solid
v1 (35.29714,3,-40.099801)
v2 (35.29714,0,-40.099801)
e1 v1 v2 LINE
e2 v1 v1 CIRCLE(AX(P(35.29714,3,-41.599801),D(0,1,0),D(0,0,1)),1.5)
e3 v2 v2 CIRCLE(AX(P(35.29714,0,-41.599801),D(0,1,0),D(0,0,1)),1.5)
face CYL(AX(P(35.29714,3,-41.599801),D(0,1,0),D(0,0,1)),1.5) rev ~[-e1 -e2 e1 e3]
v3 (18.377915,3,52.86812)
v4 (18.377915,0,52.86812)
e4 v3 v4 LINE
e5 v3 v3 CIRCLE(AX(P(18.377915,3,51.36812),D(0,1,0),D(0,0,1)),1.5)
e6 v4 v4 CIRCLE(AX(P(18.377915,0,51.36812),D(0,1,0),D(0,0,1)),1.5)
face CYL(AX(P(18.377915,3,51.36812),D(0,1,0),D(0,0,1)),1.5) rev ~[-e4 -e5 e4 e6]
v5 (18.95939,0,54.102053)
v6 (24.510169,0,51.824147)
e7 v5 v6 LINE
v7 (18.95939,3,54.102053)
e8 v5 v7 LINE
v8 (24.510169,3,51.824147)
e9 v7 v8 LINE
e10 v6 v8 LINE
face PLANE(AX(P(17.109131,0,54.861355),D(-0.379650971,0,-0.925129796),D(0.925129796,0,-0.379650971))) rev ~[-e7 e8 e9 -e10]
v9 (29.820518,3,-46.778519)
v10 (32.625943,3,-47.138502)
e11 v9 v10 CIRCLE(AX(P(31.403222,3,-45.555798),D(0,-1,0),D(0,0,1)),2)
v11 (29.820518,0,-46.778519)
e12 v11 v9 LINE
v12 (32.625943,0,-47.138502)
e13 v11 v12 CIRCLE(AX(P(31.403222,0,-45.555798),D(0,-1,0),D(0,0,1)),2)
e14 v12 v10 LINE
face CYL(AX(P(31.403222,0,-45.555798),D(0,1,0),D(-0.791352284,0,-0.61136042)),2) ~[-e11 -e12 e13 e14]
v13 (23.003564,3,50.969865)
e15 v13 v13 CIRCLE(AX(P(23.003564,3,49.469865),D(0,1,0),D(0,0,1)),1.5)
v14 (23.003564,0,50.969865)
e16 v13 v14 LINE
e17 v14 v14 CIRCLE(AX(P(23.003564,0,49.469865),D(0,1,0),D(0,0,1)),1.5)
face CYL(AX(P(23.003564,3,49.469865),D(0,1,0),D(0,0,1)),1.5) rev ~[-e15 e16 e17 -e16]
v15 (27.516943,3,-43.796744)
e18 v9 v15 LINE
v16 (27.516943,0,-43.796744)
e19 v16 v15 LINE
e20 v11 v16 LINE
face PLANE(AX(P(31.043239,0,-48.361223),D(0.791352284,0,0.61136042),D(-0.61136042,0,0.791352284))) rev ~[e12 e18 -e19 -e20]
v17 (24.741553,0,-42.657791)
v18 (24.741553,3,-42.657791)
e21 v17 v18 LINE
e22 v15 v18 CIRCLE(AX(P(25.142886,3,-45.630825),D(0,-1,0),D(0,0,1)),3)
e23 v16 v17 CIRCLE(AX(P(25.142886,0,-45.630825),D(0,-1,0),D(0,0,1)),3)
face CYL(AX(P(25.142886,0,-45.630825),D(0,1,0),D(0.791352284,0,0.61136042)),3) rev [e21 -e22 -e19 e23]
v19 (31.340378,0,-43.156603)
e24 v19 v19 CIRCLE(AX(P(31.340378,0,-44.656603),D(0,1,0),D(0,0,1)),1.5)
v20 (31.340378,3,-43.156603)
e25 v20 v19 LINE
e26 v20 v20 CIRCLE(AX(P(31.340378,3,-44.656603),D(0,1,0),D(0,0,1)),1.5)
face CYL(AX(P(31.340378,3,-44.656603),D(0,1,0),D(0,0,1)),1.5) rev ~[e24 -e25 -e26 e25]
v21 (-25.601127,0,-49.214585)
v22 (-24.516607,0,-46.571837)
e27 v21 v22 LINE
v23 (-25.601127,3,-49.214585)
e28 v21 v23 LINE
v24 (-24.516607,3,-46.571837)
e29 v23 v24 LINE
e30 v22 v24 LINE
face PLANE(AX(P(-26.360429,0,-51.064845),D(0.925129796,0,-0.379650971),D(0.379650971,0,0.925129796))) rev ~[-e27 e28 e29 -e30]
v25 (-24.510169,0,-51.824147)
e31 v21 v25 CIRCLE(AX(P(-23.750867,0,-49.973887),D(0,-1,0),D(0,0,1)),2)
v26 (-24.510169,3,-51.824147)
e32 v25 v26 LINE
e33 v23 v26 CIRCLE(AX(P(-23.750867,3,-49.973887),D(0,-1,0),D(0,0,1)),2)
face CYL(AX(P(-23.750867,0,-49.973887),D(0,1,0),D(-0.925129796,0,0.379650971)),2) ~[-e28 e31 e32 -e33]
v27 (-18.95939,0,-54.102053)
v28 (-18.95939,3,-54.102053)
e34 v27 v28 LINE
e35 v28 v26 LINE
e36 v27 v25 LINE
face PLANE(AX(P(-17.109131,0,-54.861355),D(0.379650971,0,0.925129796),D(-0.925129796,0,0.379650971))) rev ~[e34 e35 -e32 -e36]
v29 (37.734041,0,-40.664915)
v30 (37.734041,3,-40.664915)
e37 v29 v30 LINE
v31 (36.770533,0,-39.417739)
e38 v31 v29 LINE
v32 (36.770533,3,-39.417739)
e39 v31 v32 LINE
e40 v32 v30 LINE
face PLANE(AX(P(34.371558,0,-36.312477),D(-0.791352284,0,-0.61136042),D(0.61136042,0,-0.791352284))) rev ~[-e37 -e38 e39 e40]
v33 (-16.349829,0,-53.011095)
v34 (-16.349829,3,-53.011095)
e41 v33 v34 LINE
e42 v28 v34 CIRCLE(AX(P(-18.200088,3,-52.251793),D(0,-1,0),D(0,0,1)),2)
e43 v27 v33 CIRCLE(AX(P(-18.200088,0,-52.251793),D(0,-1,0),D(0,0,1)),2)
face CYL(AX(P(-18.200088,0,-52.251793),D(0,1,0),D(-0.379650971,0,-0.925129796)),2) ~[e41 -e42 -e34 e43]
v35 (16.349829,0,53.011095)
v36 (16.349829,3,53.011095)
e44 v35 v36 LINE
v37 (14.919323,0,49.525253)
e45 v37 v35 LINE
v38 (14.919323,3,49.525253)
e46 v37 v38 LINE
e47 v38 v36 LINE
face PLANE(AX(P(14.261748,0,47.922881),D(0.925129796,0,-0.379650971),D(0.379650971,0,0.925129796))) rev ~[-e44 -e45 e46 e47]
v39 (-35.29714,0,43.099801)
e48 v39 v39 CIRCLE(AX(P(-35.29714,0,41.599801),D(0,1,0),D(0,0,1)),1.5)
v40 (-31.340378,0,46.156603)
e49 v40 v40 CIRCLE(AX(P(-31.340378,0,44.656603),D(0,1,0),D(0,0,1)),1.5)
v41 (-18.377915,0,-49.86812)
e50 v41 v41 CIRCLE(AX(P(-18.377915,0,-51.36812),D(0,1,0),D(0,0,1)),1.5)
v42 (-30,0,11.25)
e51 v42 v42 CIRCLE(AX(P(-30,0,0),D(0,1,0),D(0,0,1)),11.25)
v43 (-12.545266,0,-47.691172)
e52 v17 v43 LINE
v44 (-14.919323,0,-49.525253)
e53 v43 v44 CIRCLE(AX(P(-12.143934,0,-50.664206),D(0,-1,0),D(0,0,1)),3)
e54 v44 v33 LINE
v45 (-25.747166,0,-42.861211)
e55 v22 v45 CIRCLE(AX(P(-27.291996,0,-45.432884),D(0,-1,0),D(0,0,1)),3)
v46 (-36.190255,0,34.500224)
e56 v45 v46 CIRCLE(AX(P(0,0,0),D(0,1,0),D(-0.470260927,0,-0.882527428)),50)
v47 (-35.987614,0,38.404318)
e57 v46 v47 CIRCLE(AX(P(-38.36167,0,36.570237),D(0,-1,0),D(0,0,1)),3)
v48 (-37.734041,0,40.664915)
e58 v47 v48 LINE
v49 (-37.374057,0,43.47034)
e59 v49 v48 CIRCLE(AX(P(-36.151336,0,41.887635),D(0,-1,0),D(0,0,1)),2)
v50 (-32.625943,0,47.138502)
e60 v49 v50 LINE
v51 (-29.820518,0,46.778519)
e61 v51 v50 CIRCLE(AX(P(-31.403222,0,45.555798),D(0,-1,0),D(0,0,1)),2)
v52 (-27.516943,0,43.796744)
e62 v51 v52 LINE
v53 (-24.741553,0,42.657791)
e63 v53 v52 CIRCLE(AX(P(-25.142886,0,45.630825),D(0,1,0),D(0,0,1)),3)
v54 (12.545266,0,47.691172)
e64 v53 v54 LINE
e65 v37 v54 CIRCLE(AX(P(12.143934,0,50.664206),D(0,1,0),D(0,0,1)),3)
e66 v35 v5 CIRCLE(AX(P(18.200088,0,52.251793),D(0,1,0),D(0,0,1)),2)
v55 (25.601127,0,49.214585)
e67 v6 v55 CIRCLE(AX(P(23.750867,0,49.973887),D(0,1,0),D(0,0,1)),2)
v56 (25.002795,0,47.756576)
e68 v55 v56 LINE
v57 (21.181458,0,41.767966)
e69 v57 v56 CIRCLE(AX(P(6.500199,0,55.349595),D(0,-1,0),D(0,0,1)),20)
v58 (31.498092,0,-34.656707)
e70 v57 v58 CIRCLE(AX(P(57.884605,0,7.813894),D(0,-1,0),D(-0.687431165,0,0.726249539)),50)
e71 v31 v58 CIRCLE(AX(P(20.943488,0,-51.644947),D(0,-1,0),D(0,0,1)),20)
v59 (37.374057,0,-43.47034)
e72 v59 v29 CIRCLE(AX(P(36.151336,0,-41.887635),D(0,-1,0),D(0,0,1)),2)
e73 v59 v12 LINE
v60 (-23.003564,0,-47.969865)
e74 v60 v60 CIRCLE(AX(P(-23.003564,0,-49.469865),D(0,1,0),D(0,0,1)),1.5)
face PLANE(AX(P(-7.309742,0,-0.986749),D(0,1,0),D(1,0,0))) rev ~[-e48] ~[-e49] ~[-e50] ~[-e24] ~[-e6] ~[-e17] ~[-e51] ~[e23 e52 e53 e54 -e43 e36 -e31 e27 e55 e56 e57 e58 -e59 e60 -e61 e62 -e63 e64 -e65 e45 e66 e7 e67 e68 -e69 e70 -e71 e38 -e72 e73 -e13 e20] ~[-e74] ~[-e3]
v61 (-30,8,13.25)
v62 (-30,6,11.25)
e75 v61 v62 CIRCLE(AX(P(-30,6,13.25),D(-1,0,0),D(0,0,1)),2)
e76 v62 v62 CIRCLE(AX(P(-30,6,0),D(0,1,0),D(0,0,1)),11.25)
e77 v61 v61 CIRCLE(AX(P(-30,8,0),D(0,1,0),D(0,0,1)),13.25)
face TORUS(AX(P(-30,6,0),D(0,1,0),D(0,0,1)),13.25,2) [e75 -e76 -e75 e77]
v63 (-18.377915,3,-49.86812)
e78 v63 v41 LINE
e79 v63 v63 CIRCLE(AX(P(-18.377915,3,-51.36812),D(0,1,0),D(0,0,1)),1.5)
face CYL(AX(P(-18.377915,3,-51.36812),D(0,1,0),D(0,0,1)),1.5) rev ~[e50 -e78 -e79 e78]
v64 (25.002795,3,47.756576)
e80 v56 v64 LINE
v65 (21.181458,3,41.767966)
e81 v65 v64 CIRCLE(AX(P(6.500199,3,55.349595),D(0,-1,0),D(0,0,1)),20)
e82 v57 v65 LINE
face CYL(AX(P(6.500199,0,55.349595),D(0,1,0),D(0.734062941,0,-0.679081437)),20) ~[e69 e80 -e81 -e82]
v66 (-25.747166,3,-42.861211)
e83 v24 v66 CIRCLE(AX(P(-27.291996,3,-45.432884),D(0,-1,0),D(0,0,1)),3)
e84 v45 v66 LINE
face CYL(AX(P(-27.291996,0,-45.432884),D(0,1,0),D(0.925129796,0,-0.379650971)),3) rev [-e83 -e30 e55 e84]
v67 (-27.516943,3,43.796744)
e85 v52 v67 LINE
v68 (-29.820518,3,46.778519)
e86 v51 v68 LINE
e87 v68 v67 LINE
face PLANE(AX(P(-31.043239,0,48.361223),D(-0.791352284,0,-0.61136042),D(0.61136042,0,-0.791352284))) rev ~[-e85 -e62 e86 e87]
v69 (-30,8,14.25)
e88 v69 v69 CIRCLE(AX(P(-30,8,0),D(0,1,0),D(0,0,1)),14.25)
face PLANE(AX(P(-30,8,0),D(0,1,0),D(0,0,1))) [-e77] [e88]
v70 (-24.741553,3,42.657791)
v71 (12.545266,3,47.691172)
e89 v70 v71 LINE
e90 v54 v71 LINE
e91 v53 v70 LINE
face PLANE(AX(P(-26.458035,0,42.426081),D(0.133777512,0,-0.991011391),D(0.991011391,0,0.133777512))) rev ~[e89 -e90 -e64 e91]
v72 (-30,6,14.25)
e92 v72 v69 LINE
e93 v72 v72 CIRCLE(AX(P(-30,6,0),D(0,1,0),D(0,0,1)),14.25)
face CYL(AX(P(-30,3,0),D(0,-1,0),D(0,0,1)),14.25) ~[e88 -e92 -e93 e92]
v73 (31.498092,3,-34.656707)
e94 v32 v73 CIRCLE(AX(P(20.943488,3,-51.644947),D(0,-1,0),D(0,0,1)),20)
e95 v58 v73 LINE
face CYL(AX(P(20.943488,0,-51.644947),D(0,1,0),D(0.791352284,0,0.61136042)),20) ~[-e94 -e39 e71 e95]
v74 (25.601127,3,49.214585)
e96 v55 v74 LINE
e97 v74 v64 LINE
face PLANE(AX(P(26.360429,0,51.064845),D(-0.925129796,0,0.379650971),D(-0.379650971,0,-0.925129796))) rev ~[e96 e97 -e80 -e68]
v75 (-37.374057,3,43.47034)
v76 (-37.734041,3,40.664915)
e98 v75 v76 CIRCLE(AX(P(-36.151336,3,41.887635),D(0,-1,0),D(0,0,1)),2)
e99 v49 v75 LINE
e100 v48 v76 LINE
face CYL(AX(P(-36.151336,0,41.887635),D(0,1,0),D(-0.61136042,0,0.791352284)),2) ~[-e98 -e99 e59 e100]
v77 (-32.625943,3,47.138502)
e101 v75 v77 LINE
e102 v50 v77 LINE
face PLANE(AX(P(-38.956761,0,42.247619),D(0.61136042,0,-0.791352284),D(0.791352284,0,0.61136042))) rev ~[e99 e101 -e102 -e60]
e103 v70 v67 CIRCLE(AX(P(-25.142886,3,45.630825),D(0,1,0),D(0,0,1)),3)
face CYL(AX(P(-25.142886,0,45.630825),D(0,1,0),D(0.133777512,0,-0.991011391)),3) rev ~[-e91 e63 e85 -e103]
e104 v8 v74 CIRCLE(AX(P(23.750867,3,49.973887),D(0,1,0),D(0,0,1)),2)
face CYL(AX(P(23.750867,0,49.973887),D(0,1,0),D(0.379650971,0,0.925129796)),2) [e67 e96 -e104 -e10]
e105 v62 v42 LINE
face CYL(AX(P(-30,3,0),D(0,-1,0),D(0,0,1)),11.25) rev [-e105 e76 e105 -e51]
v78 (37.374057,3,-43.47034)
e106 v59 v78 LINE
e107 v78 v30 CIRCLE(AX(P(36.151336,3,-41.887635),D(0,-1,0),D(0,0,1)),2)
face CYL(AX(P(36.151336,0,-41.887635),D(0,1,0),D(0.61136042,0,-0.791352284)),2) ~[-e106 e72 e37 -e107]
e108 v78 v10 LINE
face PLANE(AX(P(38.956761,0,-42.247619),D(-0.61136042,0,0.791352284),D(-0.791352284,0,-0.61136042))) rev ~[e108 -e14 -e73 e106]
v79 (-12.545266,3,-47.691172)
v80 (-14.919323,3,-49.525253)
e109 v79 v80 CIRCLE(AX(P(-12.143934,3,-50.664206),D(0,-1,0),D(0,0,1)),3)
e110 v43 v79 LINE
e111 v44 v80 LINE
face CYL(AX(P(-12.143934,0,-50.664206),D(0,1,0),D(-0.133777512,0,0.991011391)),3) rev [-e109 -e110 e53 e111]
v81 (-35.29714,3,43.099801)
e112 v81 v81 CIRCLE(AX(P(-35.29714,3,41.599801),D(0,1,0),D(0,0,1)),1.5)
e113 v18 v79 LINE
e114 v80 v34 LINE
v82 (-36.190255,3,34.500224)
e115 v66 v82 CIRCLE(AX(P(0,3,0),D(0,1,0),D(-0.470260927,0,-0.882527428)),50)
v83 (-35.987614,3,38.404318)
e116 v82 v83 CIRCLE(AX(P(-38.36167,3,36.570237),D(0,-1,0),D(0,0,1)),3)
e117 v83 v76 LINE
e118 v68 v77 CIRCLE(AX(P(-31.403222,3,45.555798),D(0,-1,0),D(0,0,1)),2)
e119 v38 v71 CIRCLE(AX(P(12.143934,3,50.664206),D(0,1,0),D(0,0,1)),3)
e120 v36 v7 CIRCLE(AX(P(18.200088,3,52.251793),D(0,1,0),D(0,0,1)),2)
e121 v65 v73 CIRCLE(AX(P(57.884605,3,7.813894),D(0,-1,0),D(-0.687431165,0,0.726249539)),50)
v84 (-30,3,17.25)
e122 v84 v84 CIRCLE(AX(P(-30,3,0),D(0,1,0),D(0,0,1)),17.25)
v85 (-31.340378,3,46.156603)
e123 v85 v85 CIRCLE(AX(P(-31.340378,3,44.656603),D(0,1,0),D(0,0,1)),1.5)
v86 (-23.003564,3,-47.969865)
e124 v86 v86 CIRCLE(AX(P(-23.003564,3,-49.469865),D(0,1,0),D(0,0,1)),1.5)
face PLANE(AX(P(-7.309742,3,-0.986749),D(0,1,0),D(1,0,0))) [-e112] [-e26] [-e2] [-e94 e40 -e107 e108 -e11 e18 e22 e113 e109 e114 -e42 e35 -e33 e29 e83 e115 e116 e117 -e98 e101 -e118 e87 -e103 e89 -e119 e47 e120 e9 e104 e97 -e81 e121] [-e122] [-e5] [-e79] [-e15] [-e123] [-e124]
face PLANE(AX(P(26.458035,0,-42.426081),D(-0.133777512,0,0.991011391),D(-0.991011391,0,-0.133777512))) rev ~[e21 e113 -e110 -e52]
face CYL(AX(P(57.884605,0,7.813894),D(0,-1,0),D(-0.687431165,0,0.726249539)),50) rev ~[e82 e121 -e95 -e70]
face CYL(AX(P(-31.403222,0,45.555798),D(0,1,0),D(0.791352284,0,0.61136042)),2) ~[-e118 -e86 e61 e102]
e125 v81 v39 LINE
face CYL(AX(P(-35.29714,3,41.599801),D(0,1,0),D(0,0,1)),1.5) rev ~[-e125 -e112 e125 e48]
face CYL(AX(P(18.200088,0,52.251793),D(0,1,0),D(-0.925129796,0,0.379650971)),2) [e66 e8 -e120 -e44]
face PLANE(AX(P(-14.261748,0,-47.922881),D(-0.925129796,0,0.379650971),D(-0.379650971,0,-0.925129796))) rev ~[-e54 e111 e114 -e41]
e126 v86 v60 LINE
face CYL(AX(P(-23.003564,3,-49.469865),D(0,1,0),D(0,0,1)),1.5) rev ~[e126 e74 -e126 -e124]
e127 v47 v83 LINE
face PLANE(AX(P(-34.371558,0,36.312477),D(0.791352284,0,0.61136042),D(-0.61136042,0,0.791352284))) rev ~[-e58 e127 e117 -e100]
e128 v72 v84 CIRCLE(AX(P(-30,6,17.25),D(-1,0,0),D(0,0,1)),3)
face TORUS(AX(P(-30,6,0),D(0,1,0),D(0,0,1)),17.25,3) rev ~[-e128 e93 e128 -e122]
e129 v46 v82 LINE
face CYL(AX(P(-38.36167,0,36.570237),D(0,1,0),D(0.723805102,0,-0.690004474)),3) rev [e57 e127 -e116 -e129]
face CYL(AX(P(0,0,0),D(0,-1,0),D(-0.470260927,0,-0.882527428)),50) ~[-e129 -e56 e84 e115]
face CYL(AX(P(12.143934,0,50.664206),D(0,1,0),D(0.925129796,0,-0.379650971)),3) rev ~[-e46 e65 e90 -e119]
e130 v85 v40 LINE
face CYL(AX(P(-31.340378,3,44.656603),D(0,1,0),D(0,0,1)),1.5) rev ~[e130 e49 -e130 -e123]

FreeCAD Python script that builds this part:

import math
import FreeCAD as App
import Part
import Sketcher

V = App.Vector
Q = App.Units.Quantity


def edges_at(feature, points):
    """Names of the edges that pass closest to the given points."""
    edges = feature.Shape.Edges
    near = lambda p: min(range(len(edges)), key=lambda i: edges[i].distToShape(Part.Vertex(*p))[0])
    return sorted({f"Edge{near(p) + 1}" for p in points})

doc = App.newDocument("Part")
body = doc.addObject("PartDesign::Body", "Body")

sketch1 = body.newObject("Sketcher::SketchObject", "Sketch")
sketch1.AttachmentSupport = (doc.getObject("XZ_Plane"), [""])
sketch1.MapMode = "FlatFace"
sketch1.addGeometry([
    Part.LineSegment(V(-34.371558, 36.312477, 0), V(-38.956761, 42.247619, 0)),
    Part.LineSegment(V(-38.956761, 42.247619, 0), V(-31.043239, 48.361223, 0)),
    Part.LineSegment(V(-31.043239, 48.361223, 0), V(-26.458035, 42.426081, 0)),
    Part.ArcOfCircle(Part.Circle(V(0, 0, 0), V(0, 0, 1), 50), math.radians(121.948765), math.radians(133.427106)),
], False)
sketch1.addConstraint([
    Sketcher.Constraint("Coincident", 0, 2, 1, 1),
    Sketcher.Constraint("Coincident", 1, 2, 2, 1),
    Sketcher.Constraint("Coincident", 2, 2, 3, 1),
    Sketcher.Constraint("Coincident", 3, 2, 0, 1),
    Sketcher.Constraint("Coincident", 3, 3, -1, 1),
    Sketcher.Constraint("Perpendicular", 0, 1),
    Sketcher.Constraint("Perpendicular", 1, 2),
    Sketcher.Constraint("Equal", 0, 2),
    Sketcher.Constraint("Radius", 3, Q("50 mm")),
    Sketcher.Constraint("Distance", 1, Q("10 mm")),
    Sketcher.Constraint("Distance", 0, Q("7.5 mm")),
    Sketcher.Constraint("DistanceX", 0, 2, -1, 1, Q("38.956761 mm")),
])
pad1 = body.newObject("PartDesign::Pad", "Pad")
pad1.Profile = sketch1
pad1.Length = 3
pad1.Reversed = True
body2 = doc.addObject("PartDesign::Body", "Body001")

sketch2 = body2.newObject("Sketcher::SketchObject", "Sketch001")
sketch2.AttachmentSupport = (doc.getObject("XZ_Plane001"), [""])
sketch2.MapMode = "FlatFace"
sketch2.addGeometry([
    Part.LineSegment(V(14.261748, 47.922881, 0), V(17.109131, 54.861355, 0)),
    Part.LineSegment(V(17.109131, 54.861355, 0), V(26.360429, 51.064845, 0)),
    Part.LineSegment(V(26.360429, 51.064845, 0), V(23.513046, 44.126371, 0)),
    Part.ArcOfCircle(Part.Circle(V(0, 0, 0), V(0, 0, 1), 50), math.radians(61.948765), math.radians(73.427106)),
], False)
sketch2.addConstraint([
    Sketcher.Constraint("Coincident", 0, 2, 1, 1),
    Sketcher.Constraint("Coincident", 1, 2, 2, 1),
    Sketcher.Constraint("Coincident", 2, 2, 3, 1),
    Sketcher.Constraint("Coincident", 3, 2, 0, 1),
    Sketcher.Constraint("Coincident", 3, 3, -1, 1),
    Sketcher.Constraint("Perpendicular", 0, 1),
    Sketcher.Constraint("Perpendicular", 1, 2),
    Sketcher.Constraint("Equal", 0, 2),
    Sketcher.Constraint("Radius", 3, Q("50 mm")),
    Sketcher.Constraint("Distance", 1, Q("10 mm")),
    Sketcher.Constraint("Distance", 0, Q("7.5 mm")),
    Sketcher.Constraint("DistanceX", -1, 1, 0, 2, Q("17.109131 mm")),
])
pad2 = body2.newObject("PartDesign::Pad", "Pad001")
pad2.Profile = sketch2
pad2.Length = 3
pad2.Reversed = True
body3 = doc.addObject("PartDesign::Body", "Body002")

sketch3 = body3.newObject("Sketcher::SketchObject", "Sketch002")
sketch3.AttachmentSupport = (doc.getObject("XZ_Plane002"), [""])
sketch3.MapMode = "FlatFace"
sketch3.addGeometry([
    Part.LineSegment(V(34.371558, -36.312477, 0), V(38.956761, -42.247619, 0)),
    Part.LineSegment(V(38.956761, -42.247619, 0), V(31.043239, -48.361223, 0)),
    Part.LineSegment(V(31.043239, -48.361223, 0), V(26.458035, -42.426081, 0)),
    Part.ArcOfCircle(Part.Circle(V(0, 0, 0), V(0, 0, 1), 50), math.radians(-58.051235), math.radians(-46.572894)),
], False)
sketch3.addConstraint([
    Sketcher.Constraint("Coincident", 0, 2, 1, 1),
    Sketcher.Constraint("Coincident", 1, 2, 2, 1),
    Sketcher.Constraint("Coincident", 2, 2, 3, 1),
    Sketcher.Constraint("Coincident", 3, 2, 0, 1),
    Sketcher.Constraint("Coincident", 3, 3, -1, 1),
    Sketcher.Constraint("Perpendicular", 0, 1),
    Sketcher.Constraint("Perpendicular", 1, 2),
    Sketcher.Constraint("Equal", 0, 2),
    Sketcher.Constraint("Radius", 3, Q("50 mm")),
    Sketcher.Constraint("Distance", 1, Q("10 mm")),
    Sketcher.Constraint("Distance", 0, Q("7.5 mm")),
    Sketcher.Constraint("DistanceX", -1, 1, 0, 2, Q("38.956761 mm")),
])
pad3 = body3.newObject("PartDesign::Pad", "Pad002")
pad3.Profile = sketch3
pad3.Length = 3
pad3.Reversed = True
body4 = doc.addObject("PartDesign::Body", "Body003")

sketch4 = body4.newObject("Sketcher::SketchObject", "Sketch003")
sketch4.AttachmentSupport = (doc.getObject("XZ_Plane003"), [""])
sketch4.MapMode = "FlatFace"
sketch4.addGeometry([
    Part.LineSegment(V(-14.261748, -47.922881, 0), V(-17.109131, -54.861355, 0)),
    Part.LineSegment(V(-17.109131, -54.861355, 0), V(-26.360429, -51.064845, 0)),
    Part.LineSegment(V(-26.360429, -51.064845, 0), V(-23.513046, -44.126371, 0)),
    Part.ArcOfCircle(Part.Circle(V(0, 0, 0), V(0, 0, 1), 50), math.radians(-118.051235), math.radians(-106.572894)),
], False)
sketch4.addConstraint([
    Sketcher.Constraint("Coincident", 0, 2, 1, 1),
    Sketcher.Constraint("Coincident", 1, 2, 2, 1),
    Sketcher.Constraint("Coincident", 2, 2, 3, 1),
    Sketcher.Constraint("Coincident", 3, 2, 0, 1),
    Sketcher.Constraint("Coincident", 3, 3, -1, 1),
    Sketcher.Constraint("Perpendicular", 0, 1),
    Sketcher.Constraint("Perpendicular", 1, 2),
    Sketcher.Constraint("Equal", 0, 2),
    Sketcher.Constraint("Radius", 3, Q("50 mm")),
    Sketcher.Constraint("Distance", 1, Q("10 mm")),
    Sketcher.Constraint("Distance", 0, Q("7.5 mm")),
    Sketcher.Constraint("DistanceX", 0, 2, -1, 1, Q("17.109131 mm")),
])
pad4 = body4.newObject("PartDesign::Pad", "Pad003")
pad4.Profile = sketch4
pad4.Length = 3
pad4.Reversed = True
body.AllowCompound = True
doc.recompute()

boolean = body.newObject("PartDesign::Boolean", "Boolean")
boolean.Type = "Fuse"
boolean.addObjects([body2])
doc.recompute()

boolean2 = body.newObject("PartDesign::Boolean", "Boolean001")
boolean2.Type = "Fuse"
boolean2.addObjects([body3])
doc.recompute()

boolean3 = body.newObject("PartDesign::Boolean", "Boolean002")
boolean3.Type = "Fuse"
boolean3.addObjects([body4])

sketch5 = body.newObject("Sketcher::SketchObject", "Sketch004")
sketch5.AttachmentSupport = (doc.getObject("XZ_Plane"), [""])
sketch5.MapMode = "FlatFace"
sketch5.addGeometry([
    Part.LineSegment(V(-26.458035, 42.426081, 0), V(14.261748, 47.922881, 0)),
    Part.ArcOfCircle(Part.Circle(V(0, 0, 0), V(0, 0, 1), 50), math.radians(61.948765), math.radians(73.427106)),
    Part.ArcOfCircle(Part.Circle(V(57.884605, 7.813894, 0), V(0, 0, 1), 50), math.radians(133.427106), math.radians(241.948765)),
    Part.ArcOfCircle(Part.Circle(V(0, 0, 0), V(0, 0, 1), 50), math.radians(-58.051235), math.radians(-46.572894)),
    Part.LineSegment(V(26.458035, -42.426081, 0), V(-14.261748, -47.922881, 0)),
    Part.ArcOfCircle(Part.Circle(V(0, 0, 0), V(0, 0, 1), 50), math.radians(-118.051235), math.radians(-106.572894)),
    Part.ArcOfCircle(Part.Circle(V(0, 0, 0), V(0, 0, 1), 50), math.radians(133.427106), math.radians(241.948765)),
    Part.ArcOfCircle(Part.Circle(V(0, 0, 0), V(0, 0, 1), 50), math.radians(121.948765), math.radians(133.427106)),
    Part.Circle(V(-30, 0, 0), V(0, 0, 1), 11.25),
], False)
sketch5.addConstraint([
    Sketcher.Constraint("Coincident", 0, 2, 1, 2),
    Sketcher.Constraint("Coincident", 1, 1, 2, 1),
    Sketcher.Constraint("Coincident", 2, 2, 3, 2),
    Sketcher.Constraint("Coincident", 3, 1, 4, 1),
    Sketcher.Constraint("Coincident", 4, 2, 5, 2),
    Sketcher.Constraint("Tangent", 5, 1, 6, 2),
    Sketcher.Constraint("Tangent", 6, 1, 7, 2),
    Sketcher.Constraint("Coincident", 7, 1, 0, 1),
    Sketcher.Constraint("Coincident", 1, 3, -1, 1),
    Sketcher.Constraint("Coincident", 3, 3, -1, 1),
    Sketcher.Constraint("Coincident", 5, 3, -1, 1),
    Sketcher.Constraint("Coincident", 7, 3, -1, 1),
    Sketcher.Constraint("Equal", 1, 2),
    Sketcher.Constraint("Equal", 2, 3),
    Sketcher.Constraint("Equal", 3, 5),
    Sketcher.Constraint("PointOnObject", 8, 3, -1),
    Sketcher.Constraint("Parallel", 0, 4),
    Sketcher.Constraint("Equal", 0, 4),
    Sketcher.Constraint("Radius", 1, Q("50 mm")),
    Sketcher.Constraint("Diameter", 8, Q("22.5 mm")),
    Sketcher.Constraint("DistanceX", 8, 3, -1, 1, Q("30 mm")),
    Sketcher.Constraint("DistanceY", 4, 2, 3, 1, Q("5.4968 mm")),
    Sketcher.Constraint("DistanceX", -1, 1, 0, 2, Q("14.261748 mm")),
    Sketcher.Constraint("DistanceY", -1, 1, 1, 1, Q("44.126371 mm")),
    Sketcher.Constraint("DistanceX", -1, 1, 2, 2, Q("34.371558 mm")),
    Sketcher.Constraint("DistanceY", 5, 1, -1, 1, Q("44.126371 mm")),
    Sketcher.Constraint("DistanceX", 6, 1, -1, 1, Q("34.371558 mm")),
])
pad5 = body.newObject("PartDesign::Pad", "Pad004")
pad5.Profile = sketch5
pad5.Length = 3
pad5.Reversed = True

sketch6 = body.newObject("Sketcher::SketchObject", "Sketch005")
sketch6.AttachmentSupport = (doc.getObject("XZ_Plane"), [""])
sketch6.MapMode = "FlatFace"
sketch6.AttachmentOffset = App.Placement(V(0, 0, -3), App.Rotation())
sketch6.addGeometry(Part.Circle(V(-35.29714, 41.599801, 0), V(0, 0, 1), 1.5), False)
sketch6.addConstraint([
    Sketcher.Constraint("Diameter", 0, Q("3 mm")),
    Sketcher.Constraint("DistanceY", -1, 1, 0, 3, Q("41.599801 mm")),
    Sketcher.Constraint("DistanceX", 0, 3, -1, 1, Q("35.29714 mm")),
])
pocket1 = body.newObject("PartDesign::Pocket", "Pocket")
pocket1.Profile = sketch6
pocket1.Type = "UpToFirst"
pocket1.Reversed = True

sketch7 = body.newObject("Sketcher::SketchObject", "Sketch006")
sketch7.AttachmentSupport = (doc.getObject("XZ_Plane"), [""])
sketch7.MapMode = "FlatFace"
sketch7.AttachmentOffset = App.Placement(V(0, 0, -3), App.Rotation())
sketch7.addGeometry(Part.Circle(V(-31.340378, 44.656603, 0), V(0, 0, 1), 1.5), False)
sketch7.addConstraint([
    Sketcher.Constraint("Diameter", 0, Q("3 mm")),
    Sketcher.Constraint("DistanceX", 0, 3, -1, 1, Q("31.340378 mm")),
    Sketcher.Constraint("DistanceY", -1, 1, 0, 3, Q("44.656603 mm")),
])
pocket2 = body.newObject("PartDesign::Pocket", "Pocket001")
pocket2.Profile = sketch7
pocket2.Type = "UpToFirst"
pocket2.Reversed = True
doc.recompute()

fillet = body.newObject("PartDesign::Fillet", "Fillet")
fillet.Base = (pocket2, edges_at(pocket2, [(-31.043, 1.5, 48.361), (-38.957, 1.5, 42.248)]))
fillet.Radius = 2

sketch8 = body.newObject("Sketcher::SketchObject", "Sketch007")
sketch8.AttachmentSupport = (doc.getObject("XZ_Plane"), [""])
sketch8.MapMode = "FlatFace"
sketch8.AttachmentOffset = App.Placement(V(0, 0, -3), App.Rotation())
sketch8.addGeometry([
    Part.Circle(V(-30, 0, 0), V(0, 0, 1), 14.25),
    Part.Circle(V(-30, 0, 0), V(0, 0, 1), 11.25),
], False)
sketch8.addConstraint([
    Sketcher.Constraint("Coincident", 1, 3, 0, 3),
    Sketcher.Constraint("PointOnObject", 0, 3, -1),
    Sketcher.Constraint("Diameter", 0, Q("28.5 mm")),
    Sketcher.Constraint("Diameter", 1, Q("22.5 mm")),
    Sketcher.Constraint("DistanceX", 0, 3, -1, 1, Q("30 mm")),
])
pad6 = body.newObject("PartDesign::Pad", "Pad005")
pad6.Profile = sketch8
pad6.Length = 5
pad6.Reversed = True
doc.recompute()

fillet2 = body.newObject("PartDesign::Fillet", "Fillet001")
fillet2.Base = (pad6, edges_at(pad6, [(-30, 8, -11.25)]))
fillet2.Radius = 2
doc.recompute()

fillet3 = body.newObject("PartDesign::Fillet", "Fillet002")
fillet3.Base = (fillet2, edges_at(fillet2, [(-30, 3, -14.25)]))
fillet3.Radius = 3

sketch9 = body.newObject("Sketcher::SketchObject", "Sketch008")
sketch9.AttachmentSupport = (doc.getObject("XZ_Plane"), [""])
sketch9.MapMode = "FlatFace"
sketch9.AttachmentOffset = App.Placement(V(0, 0, -3), App.Rotation())
sketch9.addGeometry(Part.Circle(V(18.377915, 51.36812, 0), V(0, 0, 1), 1.5), False)
sketch9.addConstraint([
    Sketcher.Constraint("Diameter", 0, Q("3 mm")),
    Sketcher.Constraint("DistanceY", -1, 1, 0, 3, Q("51.36812 mm")),
    Sketcher.Constraint("DistanceX", -1, 1, 0, 3, Q("18.377915 mm")),
])
pocket3 = body.newObject("PartDesign::Pocket", "Pocket002")
pocket3.Profile = sketch9
pocket3.Type = "UpToFirst"
pocket3.Reversed = True

sketch10 = body.newObject("Sketcher::SketchObject", "Sketch009")
sketch10.AttachmentSupport = (doc.getObject("XZ_Plane"), [""])
sketch10.MapMode = "FlatFace"
sketch10.AttachmentOffset = App.Placement(V(0, 0, -3), App.Rotation())
sketch10.addGeometry(Part.Circle(V(23.003564, 49.469865, 0), V(0, 0, 1), 1.5), False)
sketch10.addConstraint([
    Sketcher.Constraint("Diameter", 0, Q("3 mm")),
    Sketcher.Constraint("DistanceX", -1, 1, 0, 3, Q("23.003564 mm")),
    Sketcher.Constraint("DistanceY", -1, 1, 0, 3, Q("49.469865 mm")),
])
pocket4 = body.newObject("PartDesign::Pocket", "Pocket003")
pocket4.Profile = sketch10
pocket4.Type = "UpToFirst"
pocket4.Reversed = True
doc.recompute()

fillet4 = body.newObject("PartDesign::Fillet", "Fillet003")
fillet4.Base = (pocket4, edges_at(pocket4, [(17.109, 1.5, 54.861), (26.36, 1.5, 51.065)]))
fillet4.Radius = 2

sketch11 = body.newObject("Sketcher::SketchObject", "Sketch010")
sketch11.AttachmentSupport = (doc.getObject("XZ_Plane"), [""])
sketch11.MapMode = "FlatFace"
sketch11.AttachmentOffset = App.Placement(V(0, 0, -3), App.Rotation())
sketch11.addGeometry(Part.Circle(V(-18.377915, -51.36812, 0), V(0, 0, 1), 1.5), False)
sketch11.addConstraint([
    Sketcher.Constraint("Diameter", 0, Q("3 mm")),
    Sketcher.Constraint("DistanceY", 0, 3, -1, 1, Q("51.36812 mm")),
    Sketcher.Constraint("DistanceX", 0, 3, -1, 1, Q("18.377915 mm")),
])
pocket5 = body.newObject("PartDesign::Pocket", "Pocket004")
pocket5.Profile = sketch11
pocket5.Type = "UpToFirst"
pocket5.Reversed = True

sketch12 = body.newObject("Sketcher::SketchObject", "Sketch011")
sketch12.AttachmentSupport = (doc.getObject("XZ_Plane"), [""])
sketch12.MapMode = "FlatFace"
sketch12.AttachmentOffset = App.Placement(V(0, 0, -3), App.Rotation())
sketch12.addGeometry(Part.Circle(V(-23.003564, -49.469865, 0), V(0, 0, 1), 1.5), False)
sketch12.addConstraint([
    Sketcher.Constraint("Diameter", 0, Q("3 mm")),
    Sketcher.Constraint("DistanceX", 0, 3, -1, 1, Q("23.003564 mm")),
    Sketcher.Constraint("DistanceY", 0, 3, -1, 1, Q("49.469865 mm")),
])
pocket6 = body.newObject("PartDesign::Pocket", "Pocket005")
pocket6.Profile = sketch12
pocket6.Type = "UpToFirst"
pocket6.Reversed = True
doc.recompute()

fillet5 = body.newObject("PartDesign::Fillet", "Fillet004")
fillet5.Base = (pocket6, edges_at(pocket6, [(-17.109, 1.5, -54.861), (-26.36, 1.5, -51.065)]))
fillet5.Radius = 2

sketch13 = body.newObject("Sketcher::SketchObject", "Sketch012")
sketch13.AttachmentSupport = (doc.getObject("XZ_Plane"), [""])
sketch13.MapMode = "FlatFace"
sketch13.AttachmentOffset = App.Placement(V(0, 0, -3), App.Rotation())
sketch13.addGeometry(Part.Circle(V(35.29714, -41.599801, 0), V(0, 0, 1), 1.5), False)
sketch13.addConstraint([
    Sketcher.Constraint("Diameter", 0, Q("3 mm")),
    Sketcher.Constraint("DistanceY", 0, 3, -1, 1, Q("41.599801 mm")),
    Sketcher.Constraint("DistanceX", -1, 1, 0, 3, Q("35.29714 mm")),
])
pocket7 = body.newObject("PartDesign::Pocket", "Pocket006")
pocket7.Profile = sketch13
pocket7.Type = "UpToFirst"
pocket7.Reversed = True

sketch14 = body.newObject("Sketcher::SketchObject", "Sketch013")
sketch14.AttachmentSupport = (doc.getObject("XZ_Plane"), [""])
sketch14.MapMode = "FlatFace"
sketch14.AttachmentOffset = App.Placement(V(0, 0, -3), App.Rotation())
sketch14.addGeometry(Part.Circle(V(31.340378, -44.656603, 0), V(0, 0, 1), 1.5), False)
sketch14.addConstraint([
    Sketcher.Constraint("Diameter", 0, Q("3 mm")),
    Sketcher.Constraint("DistanceX", -1, 1, 0, 3, Q("31.340378 mm")),
    Sketcher.Constraint("DistanceY", 0, 3, -1, 1, Q("44.656603 mm")),
])
pocket8 = body.newObject("PartDesign::Pocket", "Pocket007")
pocket8.Profile = sketch14
pocket8.Type = "UpToFirst"
pocket8.Reversed = True
doc.recompute()

fillet6 = body.newObject("PartDesign::Fillet", "Fillet005")
fillet6.Base = (pocket8, edges_at(pocket8, [(38.957, 1.5, -42.248), (31.043, 1.5, -48.361)]))
fillet6.Radius = 2
doc.recompute()

fillet7 = body.newObject("PartDesign::Fillet", "Fillet006")
fillet7.Base = (fillet6, edges_at(fillet6, [
    (14.262, 1.5, 47.923),
    (26.458, 1.5, -42.426),
    (-14.262, 1.5, -47.923),
    (-23.513, 1.5, -44.126),
    (-26.458, 1.5, 42.426),
    (-34.372, 1.5, 36.312),
]))
fillet7.Radius = 3
doc.recompute()

fillet8 = body.newObject("PartDesign::Fillet", "Fillet007")
fillet8.Base = (fillet7, edges_at(fillet7, [(23.513, 1.5, 44.126), (34.372, 1.5, -36.312)]))
fillet8.Radius = 20

doc.recompute()
